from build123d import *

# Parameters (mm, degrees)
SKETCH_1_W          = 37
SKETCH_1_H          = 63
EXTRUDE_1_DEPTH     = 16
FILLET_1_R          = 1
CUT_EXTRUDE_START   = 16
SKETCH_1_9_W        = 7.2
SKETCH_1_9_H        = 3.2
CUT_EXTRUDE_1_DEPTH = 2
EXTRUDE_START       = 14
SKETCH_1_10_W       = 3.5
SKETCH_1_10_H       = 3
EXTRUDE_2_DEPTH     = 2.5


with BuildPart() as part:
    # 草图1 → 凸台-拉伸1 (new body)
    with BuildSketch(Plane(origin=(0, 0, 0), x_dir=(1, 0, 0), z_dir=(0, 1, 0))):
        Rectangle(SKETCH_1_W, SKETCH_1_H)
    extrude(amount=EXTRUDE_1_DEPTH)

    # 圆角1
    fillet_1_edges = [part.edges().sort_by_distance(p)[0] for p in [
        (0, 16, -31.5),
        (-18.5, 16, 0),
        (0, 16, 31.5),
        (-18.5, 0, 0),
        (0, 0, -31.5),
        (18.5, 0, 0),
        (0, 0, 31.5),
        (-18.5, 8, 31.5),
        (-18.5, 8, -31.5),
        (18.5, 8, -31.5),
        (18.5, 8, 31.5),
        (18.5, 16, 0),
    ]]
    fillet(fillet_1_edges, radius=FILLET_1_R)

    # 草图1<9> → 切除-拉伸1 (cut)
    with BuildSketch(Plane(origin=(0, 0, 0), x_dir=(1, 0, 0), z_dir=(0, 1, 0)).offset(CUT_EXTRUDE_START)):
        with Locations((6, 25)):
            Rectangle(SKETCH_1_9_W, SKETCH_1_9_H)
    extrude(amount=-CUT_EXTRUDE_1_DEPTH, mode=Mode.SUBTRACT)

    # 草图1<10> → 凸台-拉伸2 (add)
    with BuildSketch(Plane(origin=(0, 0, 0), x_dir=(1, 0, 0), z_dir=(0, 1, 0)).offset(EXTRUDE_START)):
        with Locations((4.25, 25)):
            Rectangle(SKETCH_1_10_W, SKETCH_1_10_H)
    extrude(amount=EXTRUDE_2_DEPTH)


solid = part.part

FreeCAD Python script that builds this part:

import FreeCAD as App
import Part
import Sketcher
from FreeCAD import Vector
Q = App.Units.Quantity

doc = App.newDocument("Part")
body = doc.addObject("PartDesign::Body", "Body")

sketch1 = doc.addObject("Sketcher::SketchObject", "Sketch")
body.addObject(sketch1)
sketch1.AttachmentSupport = (doc.XZ_Plane, [""])
sketch1.MapMode = "FlatFace"
sketch1.addGeometry(Part.LineSegment(Vector(-18.5, -31.5, 0), Vector(-18.5, 31.5, 0)), False)
sketch1.addGeometry(Part.LineSegment(Vector(-18.5, 31.5, 0), Vector(18.5, 31.5, 0)), False)
sketch1.addGeometry(Part.LineSegment(Vector(18.5, 31.5, 0), Vector(18.5, -31.5, 0)), False)
sketch1.addGeometry(Part.LineSegment(Vector(18.5, -31.5, 0), Vector(-18.5, -31.5, 0)), False)
sketch1.addConstraint(Sketcher.Constraint("Coincident", 0, 2, 1, 1))
sketch1.addConstraint(Sketcher.Constraint("Coincident", 1, 2, 2, 1))
sketch1.addConstraint(Sketcher.Constraint("Coincident", 2, 2, 3, 1))
sketch1.addConstraint(Sketcher.Constraint("Coincident", 3, 2, 0, 1))
sketch1.addConstraint(Sketcher.Constraint("Vertical", 0))
sketch1.addConstraint(Sketcher.Constraint("Horizontal", 1))
sketch1.addConstraint(Sketcher.Constraint("Vertical", 2))
sketch1.addConstraint(Sketcher.Constraint("Horizontal", 3))
sketch1.addConstraint(Sketcher.Constraint("Symmetric", 0, 2, 2, 2, -1, 1))
sketch1.addConstraint(Sketcher.Constraint("DistanceX", 1, 1, 1, 2, Q("37 mm")))
sketch1.addConstraint(Sketcher.Constraint("DistanceY", 0, 1, 0, 2, Q("63 mm")))
pad1 = doc.addObject("PartDesign::Pad", "Pad")
body.addObject(pad1)
pad1.Profile = sketch1
pad1.Length = 16
pad1.Reversed = True
doc.recompute()

fillet = doc.addObject("PartDesign::Fillet", "Fillet")
body.addObject(fillet)
fillet.Base = (pad1, ["Edge1"])
fillet.UseAllEdges = True
fillet.Radius = 1

sketch2 = doc.addObject("Sketcher::SketchObject", "Sketch001")
body.addObject(sketch2)
sketch2.AttachmentSupport = (doc.XZ_Plane, [""])
sketch2.MapMode = "FlatFace"
sketch2.AttachmentOffset = App.Placement(Vector(0, 0, -16), App.Rotation())
sketch2.addGeometry(Part.LineSegment(Vector(2.4, -26.6, 0), Vector(2.4, -23.4, 0)), False)
sketch2.addGeometry(Part.LineSegment(Vector(2.4, -23.4, 0), Vector(9.6, -23.4, 0)), False)
sketch2.addGeometry(Part.LineSegment(Vector(9.6, -23.4, 0), Vector(9.6, -26.6, 0)), False)
sketch2.addGeometry(Part.LineSegment(Vector(9.6, -26.6, 0), Vector(2.4, -26.6, 0)), False)
sketch2.addConstraint(Sketcher.Constraint("Coincident", 0, 2, 1, 1))
sketch2.addConstraint(Sketcher.Constraint("Coincident", 1, 2, 2, 1))
sketch2.addConstraint(Sketcher.Constraint("Coincident", 2, 2, 3, 1))
sketch2.addConstraint(Sketcher.Constraint("Coincident", 3, 2, 0, 1))
sketch2.addConstraint(Sketcher.Constraint("Vertical", 0))
sketch2.addConstraint(Sketcher.Constraint("Horizontal", 1))
sketch2.addConstraint(Sketcher.Constraint("Vertical", 2))
sketch2.addConstraint(Sketcher.Constraint("Horizontal", 3))
sketch2.addConstraint(Sketcher.Constraint("DistanceX", 1, 1, 1, 2, Q("7.2 mm")))
sketch2.addConstraint(Sketcher.Constraint("DistanceY", 0, 1, 0, 2, Q("3.2 mm")))
sketch2.addConstraint(Sketcher.Constraint("DistanceX", -1, 1, 0, 2, Q("2.4 mm")))
sketch2.addConstraint(Sketcher.Constraint("DistanceY", 0, 2, -1, 1, Q("23.4 mm")))
pocket1 = doc.addObject("PartDesign::Pocket", "Pocket")
body.addObject(pocket1)
pocket1.Profile = sketch2
pocket1.Length = 2
pocket1.Reversed = True

sketch3 = doc.addObject("Sketcher::SketchObject", "Sketch002")
body.addObject(sketch3)
sketch3.AttachmentSupport = (doc.XZ_Plane, [""])
sketch3.MapMode = "FlatFace"
sketch3.AttachmentOffset = App.Placement(Vector(0, 0, -14), App.Rotation())
sketch3.addGeometry(Part.LineSegment(Vector(2.5, -26.5, 0), Vector(2.5, -23.5, 0)), False)
sketch3.addGeometry(Part.LineSegment(Vector(2.5, -23.5, 0), Vector(6, -23.5, 0)), False)
sketch3.addGeometry(Part.LineSegment(Vector(6, -23.5, 0), Vector(6, -26.5, 0)), False)
sketch3.addGeometry(Part.LineSegment(Vector(6, -26.5, 0), Vector(2.5, -26.5, 0)), False)
sketch3.addConstraint(Sketcher.Constraint("Coincident", 0, 2, 1, 1))
sketch3.addConstraint(Sketcher.Constraint("Coincident", 1, 2, 2, 1))
sketch3.addConstraint(Sketcher.Constraint("Coincident", 2, 2, 3, 1))
sketch3.addConstraint(Sketcher.Constraint("Coincident", 3, 2, 0, 1))
sketch3.addConstraint(Sketcher.Constraint("Vertical", 0))
sketch3.addConstraint(Sketcher.Constraint("Horizontal", 1))
sketch3.addConstraint(Sketcher.Constraint("Vertical", 2))
sketch3.addConstraint(Sketcher.Constraint("Horizontal", 3))
sketch3.addConstraint(Sketcher.Constraint("DistanceY", 0, 1, 0, 2, Q("3 mm")))
sketch3.addConstraint(Sketcher.Constraint("DistanceX", 1, 1, 1, 2, Q("3.5 mm")))
sketch3.addConstraint(Sketcher.Constraint("DistanceX", -1, 1, 1, 2, Q("6 mm")))
sketch3.addConstraint(Sketcher.Constraint("DistanceY", 0, 2, -1, 1, Q("23.5 mm")))
pad2 = doc.addObject("PartDesign::Pad", "Pad001")
body.addObject(pad2)
pad2.Profile = sketch3
pad2.Length = 2.5
pad2.Reversed = True

doc.recompute()
